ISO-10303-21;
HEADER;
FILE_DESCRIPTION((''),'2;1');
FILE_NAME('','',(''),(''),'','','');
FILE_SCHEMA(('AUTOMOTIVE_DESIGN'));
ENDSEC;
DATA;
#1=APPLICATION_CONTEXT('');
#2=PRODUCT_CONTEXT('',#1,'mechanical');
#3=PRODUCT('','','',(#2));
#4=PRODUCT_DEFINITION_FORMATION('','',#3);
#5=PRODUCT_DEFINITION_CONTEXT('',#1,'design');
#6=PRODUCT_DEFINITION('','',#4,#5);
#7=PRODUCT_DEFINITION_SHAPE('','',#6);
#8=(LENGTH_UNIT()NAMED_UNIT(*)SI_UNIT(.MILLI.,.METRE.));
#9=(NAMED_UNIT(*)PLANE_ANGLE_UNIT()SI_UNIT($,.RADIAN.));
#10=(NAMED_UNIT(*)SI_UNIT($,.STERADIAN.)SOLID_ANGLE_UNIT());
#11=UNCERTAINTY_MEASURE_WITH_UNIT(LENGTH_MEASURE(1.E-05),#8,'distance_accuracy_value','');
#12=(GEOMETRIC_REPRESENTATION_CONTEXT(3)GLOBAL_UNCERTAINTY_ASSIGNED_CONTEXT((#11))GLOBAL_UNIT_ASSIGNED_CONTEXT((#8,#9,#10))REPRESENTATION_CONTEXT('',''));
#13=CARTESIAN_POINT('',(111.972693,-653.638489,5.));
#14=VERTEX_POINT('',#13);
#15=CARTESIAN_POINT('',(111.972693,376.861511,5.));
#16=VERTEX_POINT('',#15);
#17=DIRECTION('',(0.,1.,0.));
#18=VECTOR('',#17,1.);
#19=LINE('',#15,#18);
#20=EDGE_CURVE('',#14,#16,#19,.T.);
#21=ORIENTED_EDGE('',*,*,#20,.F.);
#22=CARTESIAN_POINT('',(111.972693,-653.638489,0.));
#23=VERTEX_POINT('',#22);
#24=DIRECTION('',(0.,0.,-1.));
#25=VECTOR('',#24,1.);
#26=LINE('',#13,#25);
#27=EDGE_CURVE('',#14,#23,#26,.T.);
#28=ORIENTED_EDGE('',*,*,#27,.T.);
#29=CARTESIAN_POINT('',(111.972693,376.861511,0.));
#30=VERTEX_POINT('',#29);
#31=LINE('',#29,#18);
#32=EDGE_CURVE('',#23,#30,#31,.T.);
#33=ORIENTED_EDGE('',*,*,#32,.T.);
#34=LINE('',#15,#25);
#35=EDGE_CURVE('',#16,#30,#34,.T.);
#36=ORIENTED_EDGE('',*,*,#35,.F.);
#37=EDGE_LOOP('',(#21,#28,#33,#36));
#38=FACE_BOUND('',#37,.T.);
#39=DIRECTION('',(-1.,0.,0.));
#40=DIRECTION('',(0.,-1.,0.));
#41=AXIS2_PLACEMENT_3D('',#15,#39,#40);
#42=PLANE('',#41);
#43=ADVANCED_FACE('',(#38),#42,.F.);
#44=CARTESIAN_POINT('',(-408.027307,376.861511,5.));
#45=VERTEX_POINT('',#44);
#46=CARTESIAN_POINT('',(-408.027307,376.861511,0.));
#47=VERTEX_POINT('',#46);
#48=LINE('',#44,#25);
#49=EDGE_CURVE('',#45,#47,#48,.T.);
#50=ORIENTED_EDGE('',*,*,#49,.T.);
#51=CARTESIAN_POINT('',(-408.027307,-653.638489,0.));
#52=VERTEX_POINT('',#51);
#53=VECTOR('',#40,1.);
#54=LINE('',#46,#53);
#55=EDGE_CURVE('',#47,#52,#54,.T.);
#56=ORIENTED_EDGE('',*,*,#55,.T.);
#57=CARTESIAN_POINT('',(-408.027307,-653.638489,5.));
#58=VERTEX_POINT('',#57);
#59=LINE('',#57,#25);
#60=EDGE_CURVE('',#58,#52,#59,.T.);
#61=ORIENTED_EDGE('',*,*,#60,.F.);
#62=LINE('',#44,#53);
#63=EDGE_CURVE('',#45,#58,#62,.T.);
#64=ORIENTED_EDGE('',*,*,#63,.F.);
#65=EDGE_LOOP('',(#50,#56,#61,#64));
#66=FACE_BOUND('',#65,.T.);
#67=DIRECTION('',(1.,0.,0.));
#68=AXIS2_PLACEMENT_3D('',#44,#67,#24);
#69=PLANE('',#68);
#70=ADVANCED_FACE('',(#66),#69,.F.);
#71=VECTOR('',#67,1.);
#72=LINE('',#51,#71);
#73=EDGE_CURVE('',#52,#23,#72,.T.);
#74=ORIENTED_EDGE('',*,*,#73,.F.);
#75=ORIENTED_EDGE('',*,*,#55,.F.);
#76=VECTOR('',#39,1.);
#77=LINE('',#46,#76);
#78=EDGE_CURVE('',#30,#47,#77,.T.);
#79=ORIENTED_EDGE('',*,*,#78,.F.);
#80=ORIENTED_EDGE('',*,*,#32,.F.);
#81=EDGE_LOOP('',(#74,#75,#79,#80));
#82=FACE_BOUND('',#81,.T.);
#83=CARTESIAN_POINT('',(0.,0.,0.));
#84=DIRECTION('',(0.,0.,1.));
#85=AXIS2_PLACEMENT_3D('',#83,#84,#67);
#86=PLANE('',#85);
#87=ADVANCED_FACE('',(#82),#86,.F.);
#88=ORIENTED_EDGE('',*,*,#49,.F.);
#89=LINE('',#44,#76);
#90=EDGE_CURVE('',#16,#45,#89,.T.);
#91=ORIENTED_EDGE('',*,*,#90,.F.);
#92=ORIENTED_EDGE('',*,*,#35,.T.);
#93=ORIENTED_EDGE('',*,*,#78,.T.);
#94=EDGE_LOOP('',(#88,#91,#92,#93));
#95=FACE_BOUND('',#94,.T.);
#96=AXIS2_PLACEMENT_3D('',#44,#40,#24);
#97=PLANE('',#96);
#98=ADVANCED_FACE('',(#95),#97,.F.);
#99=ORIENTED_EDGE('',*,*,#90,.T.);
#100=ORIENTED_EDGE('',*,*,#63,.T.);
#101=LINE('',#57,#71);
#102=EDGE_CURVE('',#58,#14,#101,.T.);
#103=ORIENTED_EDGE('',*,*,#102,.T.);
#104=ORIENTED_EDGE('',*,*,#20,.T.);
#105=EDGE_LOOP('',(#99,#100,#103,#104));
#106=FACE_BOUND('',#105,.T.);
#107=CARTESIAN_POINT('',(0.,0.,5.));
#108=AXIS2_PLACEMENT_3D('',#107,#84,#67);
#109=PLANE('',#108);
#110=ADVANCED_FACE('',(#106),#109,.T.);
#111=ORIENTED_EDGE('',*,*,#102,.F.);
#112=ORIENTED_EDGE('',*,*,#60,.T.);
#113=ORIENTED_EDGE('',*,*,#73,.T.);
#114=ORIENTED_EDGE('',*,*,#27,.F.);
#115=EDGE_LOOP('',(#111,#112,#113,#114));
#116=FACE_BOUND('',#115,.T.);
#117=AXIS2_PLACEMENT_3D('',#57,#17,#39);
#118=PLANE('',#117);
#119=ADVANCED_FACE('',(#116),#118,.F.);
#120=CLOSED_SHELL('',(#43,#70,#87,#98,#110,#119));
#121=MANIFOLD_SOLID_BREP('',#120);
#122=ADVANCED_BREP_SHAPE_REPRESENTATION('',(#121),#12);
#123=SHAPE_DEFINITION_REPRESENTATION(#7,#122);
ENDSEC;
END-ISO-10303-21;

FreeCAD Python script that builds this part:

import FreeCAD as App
import Part
import Sketcher
Q = App.Units.Quantity

doc = App.newDocument("Part")
body = doc.addObject("PartDesign::Body", "Body")

# Sketch on XY plane
sketch1 = body.newObject("Sketcher::SketchObject", "Sketch")
sketch1.AttachmentSupport = (doc.getObject("XY_Plane"), [""])
sketch1.MapMode = "FlatFace"
sketch1.addGeometry([
    Part.LineSegment(App.Vector(-408, 377, 0), App.Vector(-408, -654, 0)),
    Part.LineSegment(App.Vector(-408, -654, 0), App.Vector(112, -654, 0)),
    Part.LineSegment(App.Vector(112, -654, 0), App.Vector(112, 377, 0)),
    Part.LineSegment(App.Vector(112, 377, 0), App.Vector(-408, 377, 0)),
], False)
sketch1.addConstraint([
    Sketcher.Constraint("Coincident", 0, 2, 1, 1),
    Sketcher.Constraint("Coincident", 1, 2, 2, 1),
    Sketcher.Constraint("Coincident", 2, 2, 3, 1),
    Sketcher.Constraint("Coincident", 3, 2, 0, 1),
    Sketcher.Constraint("Vertical", 0),
    Sketcher.Constraint("Horizontal", 1),
    Sketcher.Constraint("Vertical", 2),
    Sketcher.Constraint("Horizontal", 3),
    Sketcher.Constraint("DistanceX", 1, 1, 1, 2, Q("520 mm")),
    Sketcher.Constraint("DistanceY", 0, 2, 0, 1, Q("1030.5 mm")),
    Sketcher.Constraint("DistanceY", 0, 2, -1, 1, Q("653.638489 mm")),
    Sketcher.Constraint("DistanceX", 0, 2, -1, 1, Q("408.027307 mm")),
])
pad1 = body.newObject("PartDesign::Pad", "Pad")
pad1.Profile = sketch1
pad1.Length = 5

doc.recompute()
